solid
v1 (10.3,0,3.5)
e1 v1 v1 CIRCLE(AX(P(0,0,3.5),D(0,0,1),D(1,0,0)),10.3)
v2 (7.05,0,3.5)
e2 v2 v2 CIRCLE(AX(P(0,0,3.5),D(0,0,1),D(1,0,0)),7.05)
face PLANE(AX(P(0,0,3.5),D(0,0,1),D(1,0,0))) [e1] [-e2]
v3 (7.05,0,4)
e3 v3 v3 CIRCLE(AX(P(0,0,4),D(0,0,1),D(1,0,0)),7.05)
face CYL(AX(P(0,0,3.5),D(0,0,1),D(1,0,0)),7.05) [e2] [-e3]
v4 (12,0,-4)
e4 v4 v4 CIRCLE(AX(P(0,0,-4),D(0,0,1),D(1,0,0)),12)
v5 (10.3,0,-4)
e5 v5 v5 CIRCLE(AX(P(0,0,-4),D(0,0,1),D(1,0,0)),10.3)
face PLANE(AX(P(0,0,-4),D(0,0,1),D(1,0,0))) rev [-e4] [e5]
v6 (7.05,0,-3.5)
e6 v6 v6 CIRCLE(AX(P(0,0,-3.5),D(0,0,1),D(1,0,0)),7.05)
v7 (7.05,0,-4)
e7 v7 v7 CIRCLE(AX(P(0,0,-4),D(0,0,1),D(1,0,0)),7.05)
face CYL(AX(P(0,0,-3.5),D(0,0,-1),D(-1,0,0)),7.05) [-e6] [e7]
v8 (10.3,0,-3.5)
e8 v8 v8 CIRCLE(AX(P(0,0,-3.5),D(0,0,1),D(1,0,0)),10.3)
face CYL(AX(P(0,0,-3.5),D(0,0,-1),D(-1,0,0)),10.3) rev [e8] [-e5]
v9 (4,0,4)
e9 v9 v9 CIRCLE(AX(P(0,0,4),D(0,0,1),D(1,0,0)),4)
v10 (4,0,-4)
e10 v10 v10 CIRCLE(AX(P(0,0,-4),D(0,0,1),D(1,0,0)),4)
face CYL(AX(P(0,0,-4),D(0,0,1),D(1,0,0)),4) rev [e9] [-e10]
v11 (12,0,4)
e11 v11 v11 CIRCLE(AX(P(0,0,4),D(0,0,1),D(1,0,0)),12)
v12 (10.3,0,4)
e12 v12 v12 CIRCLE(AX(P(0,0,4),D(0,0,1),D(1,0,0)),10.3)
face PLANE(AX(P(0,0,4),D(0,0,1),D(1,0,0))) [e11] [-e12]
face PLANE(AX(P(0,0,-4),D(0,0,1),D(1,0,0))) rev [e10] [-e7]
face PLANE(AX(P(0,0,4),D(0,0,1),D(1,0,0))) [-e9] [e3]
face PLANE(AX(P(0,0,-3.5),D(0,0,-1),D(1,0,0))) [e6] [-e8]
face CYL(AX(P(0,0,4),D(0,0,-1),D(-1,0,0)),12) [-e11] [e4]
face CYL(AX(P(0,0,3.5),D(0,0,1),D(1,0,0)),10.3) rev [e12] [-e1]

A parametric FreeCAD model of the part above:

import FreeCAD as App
import Part
import Sketcher

V = App.Vector

doc = App.newDocument("Part")
body = doc.addObject("PartDesign::Body", "Body")

sketch1 = body.newObject("Sketcher::SketchObject", "Sketch")
sketch1.AttachmentSupport = (doc.getObject("XY_Plane"), [""])
sketch1.MapMode = "FlatFace"
sketch1.addGeometry(Part.Circle(V(0, 0, 0), V(0, 0, 1), 12), False)
sketch1.addConstraint(Sketcher.Constraint("Coincident", 0, 3, -1, 1))
sketch1.addConstraint(Sketcher.Constraint("Diameter", 0, 24.0))
pad1 = body.newObject("PartDesign::Pad", "Pad")
pad1.Profile = sketch1
pad1.Length = 8
pad1.Midplane = True

sketch2 = body.newObject("Sketcher::SketchObject", "Sketch001")
sketch2.AttachmentSupport = (doc.getObject("XY_Plane"), [""])
sketch2.MapMode = "FlatFace"
sketch2.AttachmentOffset = App.Placement(V(0, 0, 4), App.Rotation())
sketch2.addGeometry(Part.Circle(V(0, 0, 0), V(0, 0, 1), 4), False)
sketch2.addConstraint(Sketcher.Constraint("Coincident", 0, 3, -1, 1))
sketch2.addConstraint(Sketcher.Constraint("Diameter", 0, 8.0))
pocket1 = body.newObject("PartDesign::Pocket", "Pocket")
pocket1.Profile = sketch2
pocket1.Type = "ThroughAll"

sketch3 = body.newObject("Sketcher::SketchObject", "Sketch002")
sketch3.AttachmentSupport = (doc.getObject("XY_Plane"), [""])
sketch3.MapMode = "FlatFace"
sketch3.AttachmentOffset = App.Placement(V(0, 0, 4), App.Rotation())
sketch3.addGeometry(Part.Circle(V(0, 0, 0), V(0, 0, 1), 10), False)
sketch3.addGeometry(Part.Circle(V(0, 0, 0), V(0, 0, 1), 7), False)
sketch3.addConstraint(Sketcher.Constraint("Coincident", 0, 3, -1, 1))
sketch3.addConstraint(Sketcher.Constraint("Coincident", 1, 3, -1, 1))
sketch3.addConstraint(Sketcher.Constraint("Diameter", 0, 20.6))
sketch3.addConstraint(Sketcher.Constraint("Diameter", 1, 14.1))
pocket2 = body.newObject("PartDesign::Pocket", "Pocket001")
pocket2.Profile = sketch3
pocket2.Length = 0.5
doc.recompute()

mirrored = body.newObject("PartDesign::Mirrored", "Mirrored")
mirrored.Originals = [pocket2]
mirrored.MirrorPlane = (doc.getObject("XY_Plane"), [""])
body.Tip = mirrored

doc.recompute()
